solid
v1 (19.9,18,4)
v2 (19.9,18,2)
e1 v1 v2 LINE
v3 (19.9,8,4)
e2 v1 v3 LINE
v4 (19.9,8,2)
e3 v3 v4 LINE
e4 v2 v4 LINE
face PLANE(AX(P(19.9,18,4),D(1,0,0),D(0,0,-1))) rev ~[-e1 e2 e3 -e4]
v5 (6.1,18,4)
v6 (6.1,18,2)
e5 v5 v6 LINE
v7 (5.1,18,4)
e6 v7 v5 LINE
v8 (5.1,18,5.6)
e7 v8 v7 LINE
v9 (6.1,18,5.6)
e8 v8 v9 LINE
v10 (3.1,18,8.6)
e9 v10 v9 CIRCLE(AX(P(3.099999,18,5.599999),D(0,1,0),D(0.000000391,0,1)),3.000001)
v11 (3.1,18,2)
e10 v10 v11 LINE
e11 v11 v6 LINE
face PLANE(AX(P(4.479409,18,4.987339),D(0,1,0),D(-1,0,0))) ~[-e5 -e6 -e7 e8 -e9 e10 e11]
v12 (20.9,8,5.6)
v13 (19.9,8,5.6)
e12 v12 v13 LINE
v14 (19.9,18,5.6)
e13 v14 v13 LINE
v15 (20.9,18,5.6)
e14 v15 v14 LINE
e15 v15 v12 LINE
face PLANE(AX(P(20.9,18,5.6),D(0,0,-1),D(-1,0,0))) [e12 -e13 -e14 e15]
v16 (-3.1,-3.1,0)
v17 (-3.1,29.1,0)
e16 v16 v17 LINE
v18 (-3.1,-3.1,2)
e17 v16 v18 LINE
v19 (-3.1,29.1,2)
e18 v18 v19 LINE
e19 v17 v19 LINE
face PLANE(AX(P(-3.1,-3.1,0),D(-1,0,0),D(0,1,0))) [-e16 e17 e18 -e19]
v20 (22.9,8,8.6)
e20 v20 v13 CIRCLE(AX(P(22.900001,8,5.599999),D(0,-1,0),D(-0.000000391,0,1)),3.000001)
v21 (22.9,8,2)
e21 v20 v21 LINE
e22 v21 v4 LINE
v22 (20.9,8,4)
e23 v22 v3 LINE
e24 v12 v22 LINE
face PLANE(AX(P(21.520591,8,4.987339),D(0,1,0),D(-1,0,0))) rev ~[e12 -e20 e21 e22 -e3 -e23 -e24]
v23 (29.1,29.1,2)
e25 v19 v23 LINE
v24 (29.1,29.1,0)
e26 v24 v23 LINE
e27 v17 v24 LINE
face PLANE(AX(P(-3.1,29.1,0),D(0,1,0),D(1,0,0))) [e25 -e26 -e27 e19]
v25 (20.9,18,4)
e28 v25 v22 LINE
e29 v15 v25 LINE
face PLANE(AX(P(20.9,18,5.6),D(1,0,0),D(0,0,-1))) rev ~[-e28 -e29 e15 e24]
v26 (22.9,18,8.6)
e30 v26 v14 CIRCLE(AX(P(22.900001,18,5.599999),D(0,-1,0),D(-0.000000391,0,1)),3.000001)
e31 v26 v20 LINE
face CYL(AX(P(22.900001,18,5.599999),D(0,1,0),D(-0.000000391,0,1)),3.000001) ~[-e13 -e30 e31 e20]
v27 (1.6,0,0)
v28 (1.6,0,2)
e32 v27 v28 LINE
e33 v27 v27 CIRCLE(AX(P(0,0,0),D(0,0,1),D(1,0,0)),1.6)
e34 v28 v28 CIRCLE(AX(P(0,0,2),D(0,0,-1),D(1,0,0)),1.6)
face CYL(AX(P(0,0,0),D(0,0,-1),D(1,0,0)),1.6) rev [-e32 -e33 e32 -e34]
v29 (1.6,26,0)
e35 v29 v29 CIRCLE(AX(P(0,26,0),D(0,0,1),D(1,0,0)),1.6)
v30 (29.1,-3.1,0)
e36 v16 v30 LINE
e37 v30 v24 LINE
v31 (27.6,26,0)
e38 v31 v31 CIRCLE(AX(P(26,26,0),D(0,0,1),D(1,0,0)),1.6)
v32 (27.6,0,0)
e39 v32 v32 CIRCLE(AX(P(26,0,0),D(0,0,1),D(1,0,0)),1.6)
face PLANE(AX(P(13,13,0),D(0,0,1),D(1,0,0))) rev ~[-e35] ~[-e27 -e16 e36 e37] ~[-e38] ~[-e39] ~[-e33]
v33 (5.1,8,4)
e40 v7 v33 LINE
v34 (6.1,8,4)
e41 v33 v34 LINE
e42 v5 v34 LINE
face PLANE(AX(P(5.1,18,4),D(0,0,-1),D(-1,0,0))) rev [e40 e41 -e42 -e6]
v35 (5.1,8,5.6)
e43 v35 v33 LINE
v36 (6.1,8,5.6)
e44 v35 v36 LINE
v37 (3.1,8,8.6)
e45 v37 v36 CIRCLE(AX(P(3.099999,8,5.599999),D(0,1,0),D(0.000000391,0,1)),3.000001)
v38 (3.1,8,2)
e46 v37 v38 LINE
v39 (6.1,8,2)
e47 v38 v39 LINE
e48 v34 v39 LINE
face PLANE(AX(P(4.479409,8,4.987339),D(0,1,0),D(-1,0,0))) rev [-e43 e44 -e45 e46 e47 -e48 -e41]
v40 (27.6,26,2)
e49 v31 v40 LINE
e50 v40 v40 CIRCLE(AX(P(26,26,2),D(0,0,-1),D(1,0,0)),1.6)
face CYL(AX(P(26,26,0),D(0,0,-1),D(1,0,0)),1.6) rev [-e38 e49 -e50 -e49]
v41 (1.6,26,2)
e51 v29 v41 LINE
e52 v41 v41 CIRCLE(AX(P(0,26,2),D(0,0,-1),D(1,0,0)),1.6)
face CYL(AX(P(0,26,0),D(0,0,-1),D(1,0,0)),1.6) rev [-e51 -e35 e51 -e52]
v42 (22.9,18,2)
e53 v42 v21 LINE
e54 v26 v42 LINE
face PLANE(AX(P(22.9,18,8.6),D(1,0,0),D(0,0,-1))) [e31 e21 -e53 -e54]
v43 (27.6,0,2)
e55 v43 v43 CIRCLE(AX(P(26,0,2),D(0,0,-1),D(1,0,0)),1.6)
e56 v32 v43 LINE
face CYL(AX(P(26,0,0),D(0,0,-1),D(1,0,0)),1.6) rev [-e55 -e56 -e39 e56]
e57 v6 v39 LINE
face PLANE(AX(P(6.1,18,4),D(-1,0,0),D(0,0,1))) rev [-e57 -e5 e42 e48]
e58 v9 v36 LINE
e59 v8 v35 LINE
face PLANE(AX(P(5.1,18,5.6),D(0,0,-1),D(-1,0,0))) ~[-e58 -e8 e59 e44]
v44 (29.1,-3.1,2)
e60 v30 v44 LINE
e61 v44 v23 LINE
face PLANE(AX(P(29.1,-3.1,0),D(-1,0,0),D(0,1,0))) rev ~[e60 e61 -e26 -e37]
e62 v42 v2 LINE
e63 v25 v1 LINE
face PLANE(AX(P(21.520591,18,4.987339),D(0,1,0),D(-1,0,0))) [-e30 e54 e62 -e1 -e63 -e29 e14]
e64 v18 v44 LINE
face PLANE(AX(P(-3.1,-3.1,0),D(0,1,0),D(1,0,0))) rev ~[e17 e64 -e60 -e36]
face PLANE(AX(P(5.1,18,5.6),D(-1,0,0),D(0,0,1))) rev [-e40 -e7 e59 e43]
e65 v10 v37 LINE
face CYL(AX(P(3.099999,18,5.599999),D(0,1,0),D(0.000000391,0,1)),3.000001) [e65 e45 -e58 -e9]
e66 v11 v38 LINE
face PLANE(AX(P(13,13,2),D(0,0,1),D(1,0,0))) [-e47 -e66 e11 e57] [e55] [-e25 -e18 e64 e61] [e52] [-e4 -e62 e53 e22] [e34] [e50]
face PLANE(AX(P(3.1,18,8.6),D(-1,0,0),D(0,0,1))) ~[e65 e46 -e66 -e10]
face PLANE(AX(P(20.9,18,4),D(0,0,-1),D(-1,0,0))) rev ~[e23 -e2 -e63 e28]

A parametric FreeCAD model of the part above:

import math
import FreeCAD as App
import Part
import Sketcher
Q = App.Units.Quantity


def add_polygon(sketch, points):
    """Adds a closed chain of lines whose ends are joined by coincident constraints."""
    first, n = sketch.GeometryCount, len(points)
    for a, b in zip(points, points[1:] + points[:1]):
        sketch.addGeometry(Part.LineSegment(App.Vector(*a, 0), App.Vector(*b, 0)), False)
    for i in range(n):
        sketch.addConstraint(Sketcher.Constraint("Coincident", first + i, 2, first + (i + 1) % n, 1))

doc = App.newDocument("Part")
body = doc.addObject("PartDesign::Body", "Body")

# Sketch on XZ plane
sketch1 = body.newObject("Sketcher::SketchObject", "Sketch")
sketch1.AttachmentSupport = (doc.getObject("XZ_Plane"), [""])
sketch1.MapMode = "FlatFace"
sketch1.addGeometry([
    Part.LineSegment(App.Vector(6.9, 3.6, 0), App.Vector(7.9, 3.6, 0)),  # 0
    Part.LineSegment(App.Vector(7.9, 3.6, 0), App.Vector(7.9, 2, 0)),  # 1
    Part.LineSegment(App.Vector(7.9, 2, 0), App.Vector(6.9, 2, 0)),  # 2
    Part.LineSegment(App.Vector(6.9, 2, 0), App.Vector(6.9, 0, 0)),  # 3
    Part.LineSegment(App.Vector(6.9, 0, 0), App.Vector(9.9, 0, 0)),  # 4
    Part.LineSegment(App.Vector(9.9, 0, 0), App.Vector(9.9, 6.6, 0)),  # 5
    Part.ArcOfCircle(Part.Circle(App.Vector(9.9, 3.6, 0), App.Vector(0, 0, 1), 3), math.radians(90), math.radians(180)),  # 6
], False)
sketch1.addConstraint([
    Sketcher.Constraint("Coincident", 0, 2, 1, 1),
    Sketcher.Constraint("Coincident", 1, 2, 2, 1),
    Sketcher.Constraint("Coincident", 2, 2, 3, 1),
    Sketcher.Constraint("Coincident", 3, 2, 4, 1),
    Sketcher.Constraint("Coincident", 4, 2, 5, 1),
    Sketcher.Constraint("Coincident", 5, 2, 6, 1),
    Sketcher.Constraint("Coincident", 6, 2, 0, 1),
    Sketcher.Constraint("Horizontal", 0),
    Sketcher.Constraint("Vertical", 1),
    Sketcher.Constraint("Horizontal", 2),
    Sketcher.Constraint("Vertical", 3),
    Sketcher.Constraint("Horizontal", 4),
    Sketcher.Constraint("Vertical", 5),
    Sketcher.Constraint("PointOnObject", 3, 2, -1),
    Sketcher.Constraint("Horizontal", 6, 3, 0, 2),
    Sketcher.Constraint("Vertical", 6, 3, 4, 2),
    Sketcher.Constraint("Vertical", 3, 2, 6, 2),
    Sketcher.Constraint("Radius", 6, Q("3.000001 mm")),
    Sketcher.Constraint("DistanceX", 0, 1, 0, 2, Q("1 mm")),
    Sketcher.Constraint("DistanceY", 3, 2, 3, 1, Q("2 mm")),
    Sketcher.Constraint("DistanceY", 1, 2, 1, 1, Q("1.6 mm")),
    Sketcher.Constraint("DistanceX", -1, 1, 6, 3, Q("9.900001 mm")),
])
pad1 = body.newObject("PartDesign::Pad", "Pad")
pad1.Profile = sketch1
pad1.Length = 10
body2 = doc.addObject("PartDesign::Body", "Body001")
doc.recompute()

mirroring = doc.addObject("Part::Mirroring", "Mirroring")
mirroring.Source = body
mirroring.Base = App.Vector(0, 0, 0)
mirroring.Normal = App.Vector(1, 0, 0)
body2.BaseFeature = mirroring
doc.recompute()
body3 = doc.addObject("PartDesign::Body", "Body002")
body3.AllowCompound = True

# Sketch on XZ plane
sketch2 = body3.newObject("Sketcher::SketchObject", "Sketch001")
sketch2.AttachmentSupport = (doc.getObject("XZ_Plane002"), [""])
sketch2.MapMode = "FlatFace"
sketch2.addGeometry([
    Part.LineSegment(App.Vector(6.9, 3.6, 0), App.Vector(7.9, 3.6, 0)),  # 0
    Part.LineSegment(App.Vector(7.9, 3.6, 0), App.Vector(7.9, 2, 0)),  # 1
    Part.LineSegment(App.Vector(7.9, 2, 0), App.Vector(6.9, 2, 0)),  # 2
    Part.LineSegment(App.Vector(6.9, 2, 0), App.Vector(6.9, 0, 0)),  # 3
    Part.LineSegment(App.Vector(6.9, 0, 0), App.Vector(9.9, 0, 0)),  # 4
    Part.LineSegment(App.Vector(9.9, 0, 0), App.Vector(9.9, 6.6, 0)),  # 5
    Part.ArcOfCircle(Part.Circle(App.Vector(9.9, 3.6, 0), App.Vector(0, 0, 1), 3), math.radians(90), math.radians(180)),  # 6
], False)
sketch2.addConstraint([
    Sketcher.Constraint("Coincident", 0, 2, 1, 1),
    Sketcher.Constraint("Coincident", 1, 2, 2, 1),
    Sketcher.Constraint("Coincident", 2, 2, 3, 1),
    Sketcher.Constraint("Coincident", 3, 2, 4, 1),
    Sketcher.Constraint("Coincident", 4, 2, 5, 1),
    Sketcher.Constraint("Coincident", 5, 2, 6, 1),
    Sketcher.Constraint("Coincident", 6, 2, 0, 1),
    Sketcher.Constraint("Horizontal", 0),
    Sketcher.Constraint("Vertical", 1),
    Sketcher.Constraint("Horizontal", 2),
    Sketcher.Constraint("Vertical", 3),
    Sketcher.Constraint("Horizontal", 4),
    Sketcher.Constraint("Vertical", 5),
    Sketcher.Constraint("PointOnObject", 3, 2, -1),
    Sketcher.Constraint("Horizontal", 6, 3, 0, 2),
    Sketcher.Constraint("Vertical", 6, 3, 4, 2),
    Sketcher.Constraint("Vertical", 3, 2, 6, 2),
    Sketcher.Constraint("Radius", 6, Q("3.000001 mm")),
    Sketcher.Constraint("DistanceX", 0, 1, 0, 2, Q("1 mm")),
    Sketcher.Constraint("DistanceY", 3, 2, 3, 1, Q("2 mm")),
    Sketcher.Constraint("DistanceY", 1, 2, 1, 1, Q("1.6 mm")),
    Sketcher.Constraint("DistanceX", -1, 1, 6, 3, Q("9.900001 mm")),
])
pad2 = body3.newObject("PartDesign::Pad", "Pad001")
pad2.Profile = sketch2
pad2.Length = 10
doc.recompute()

boolean = body3.newObject("PartDesign::Boolean", "Boolean")
boolean.Type = "Fuse"
boolean.addObjects([body2])
body4 = doc.addObject("PartDesign::Body", "Body003")
body4.AllowCompound = True
doc.recompute()

body3.Placement = App.Placement(App.Vector(13, 18, 2), App.Rotation(App.Vector(0, 0, 1), 0))
boolean2 = body4.newObject("PartDesign::Boolean", "Boolean001")
boolean2.Type = "Fuse"
boolean2.addObjects([body3])
body5 = doc.addObject("PartDesign::Body", "Body004")

# Sketch on XY plane
sketch3 = body5.newObject("Sketcher::SketchObject", "Sketch002")
sketch3.AttachmentSupport = (doc.getObject("XY_Plane004"), [""])
sketch3.MapMode = "FlatFace"
sketch3.addGeometry(Part.Circle(App.Vector(26, 0, 0), App.Vector(0, 0, 1), 1.6), False)
sketch3.addConstraint([
    Sketcher.Constraint("PointOnObject", 0, 3, -1),
    Sketcher.Constraint("Diameter", 0, Q("3.2 mm")),
    Sketcher.Constraint("DistanceX", -1, 1, 0, 3, Q("26 mm")),
])
pad3 = body5.newObject("PartDesign::Pad", "Pad002")
pad3.Profile = sketch3
pad3.Length = 10
body6 = doc.addObject("PartDesign::Body", "Body005")

# Sketch on XY plane
sketch4 = body6.newObject("Sketcher::SketchObject", "Sketch003")
sketch4.AttachmentSupport = (doc.getObject("XY_Plane005"), [""])
sketch4.MapMode = "FlatFace"
sketch4.addGeometry(Part.Circle(App.Vector(26, 26, 0), App.Vector(0, 0, 1), 1.6), False)
sketch4.addConstraint([
    Sketcher.Constraint("Diameter", 0, Q("3.2 mm")),
    Sketcher.Constraint("DistanceX", -1, 1, 0, 3, Q("26 mm")),
    Sketcher.Constraint("DistanceY", -1, 1, 0, 3, Q("26 mm")),
])
pad4 = body6.newObject("PartDesign::Pad", "Pad003")
pad4.Profile = sketch4
pad4.Length = 10
body7 = doc.addObject("PartDesign::Body", "Body006")

# Sketch on XY plane
sketch5 = body7.newObject("Sketcher::SketchObject", "Sketch004")
sketch5.AttachmentSupport = (doc.getObject("XY_Plane006"), [""])
sketch5.MapMode = "FlatFace"
sketch5.addGeometry(Part.Circle(App.Vector(0, 26, 0), App.Vector(0, 0, 1), 1.6), False)
sketch5.addConstraint([
    Sketcher.Constraint("PointOnObject", 0, 3, -2),
    Sketcher.Constraint("Diameter", 0, Q("3.2 mm")),
    Sketcher.Constraint("DistanceY", -1, 1, 0, 3, Q("26 mm")),
])
pad5 = body7.newObject("PartDesign::Pad", "Pad004")
pad5.Profile = sketch5
pad5.Length = 10
body8 = doc.addObject("PartDesign::Body", "Body007")

# Sketch on XY plane
sketch6 = body8.newObject("Sketcher::SketchObject", "Sketch005")
sketch6.AttachmentSupport = (doc.getObject("XY_Plane007"), [""])
sketch6.MapMode = "FlatFace"
sketch6.addGeometry(Part.Circle(App.Vector(0, 0, 0), App.Vector(0, 0, 1), 1.6), False)
sketch6.addConstraint([
    Sketcher.Constraint("Coincident", 0, 3, -1, 1),
    Sketcher.Constraint("Diameter", 0, Q("3.2 mm")),
])
pad6 = body8.newObject("PartDesign::Pad", "Pad005")
pad6.Profile = sketch6
pad6.Length = 10
body9 = doc.addObject("PartDesign::Body", "Body008")

# Sketch on XY plane
sketch7 = body9.newObject("Sketcher::SketchObject", "Sketch006")
sketch7.AttachmentSupport = (doc.getObject("XY_Plane008"), [""])
sketch7.MapMode = "FlatFace"
add_polygon(sketch7, [(-3, 29), (-3, -3), (29, -3), (29, 29)])  # lines 0-3
sketch7.addConstraint([
    Sketcher.Constraint("Vertical", 0),
    Sketcher.Constraint("Horizontal", 1),
    Sketcher.Constraint("Vertical", 2),
    Sketcher.Constraint("Horizontal", 3),
    Sketcher.Constraint("Equal", 3, 0),
    Sketcher.Constraint("DistanceX", 1, 1, 1, 2, Q("32.2 mm")),
    Sketcher.Constraint("DistanceX", 0, 2, -1, 1, Q("3.1 mm")),
    Sketcher.Constraint("DistanceY", 0, 2, -1, 1, Q("3.1 mm")),
])
pad7 = body9.newObject("PartDesign::Pad", "Pad006")
pad7.Profile = sketch7
pad7.Length = 2
doc.recompute()

boolean3 = body9.newObject("PartDesign::Boolean", "Boolean002")
boolean3.Type = "Cut"
boolean3.addObjects([body8])
doc.recompute()

boolean4 = body9.newObject("PartDesign::Boolean", "Boolean003")
boolean4.Type = "Cut"
boolean4.addObjects([body7])
doc.recompute()

boolean5 = body9.newObject("PartDesign::Boolean", "Boolean004")
boolean5.Type = "Cut"
boolean5.addObjects([body6])
doc.recompute()

boolean6 = body9.newObject("PartDesign::Boolean", "Boolean005")
boolean6.Type = "Cut"
boolean6.addObjects([body5])
doc.recompute()

boolean7 = body9.newObject("PartDesign::Boolean", "Boolean006")
boolean7.Type = "Fuse"
boolean7.addObjects([body4])
mirroring.Visibility = False

doc.recompute()
